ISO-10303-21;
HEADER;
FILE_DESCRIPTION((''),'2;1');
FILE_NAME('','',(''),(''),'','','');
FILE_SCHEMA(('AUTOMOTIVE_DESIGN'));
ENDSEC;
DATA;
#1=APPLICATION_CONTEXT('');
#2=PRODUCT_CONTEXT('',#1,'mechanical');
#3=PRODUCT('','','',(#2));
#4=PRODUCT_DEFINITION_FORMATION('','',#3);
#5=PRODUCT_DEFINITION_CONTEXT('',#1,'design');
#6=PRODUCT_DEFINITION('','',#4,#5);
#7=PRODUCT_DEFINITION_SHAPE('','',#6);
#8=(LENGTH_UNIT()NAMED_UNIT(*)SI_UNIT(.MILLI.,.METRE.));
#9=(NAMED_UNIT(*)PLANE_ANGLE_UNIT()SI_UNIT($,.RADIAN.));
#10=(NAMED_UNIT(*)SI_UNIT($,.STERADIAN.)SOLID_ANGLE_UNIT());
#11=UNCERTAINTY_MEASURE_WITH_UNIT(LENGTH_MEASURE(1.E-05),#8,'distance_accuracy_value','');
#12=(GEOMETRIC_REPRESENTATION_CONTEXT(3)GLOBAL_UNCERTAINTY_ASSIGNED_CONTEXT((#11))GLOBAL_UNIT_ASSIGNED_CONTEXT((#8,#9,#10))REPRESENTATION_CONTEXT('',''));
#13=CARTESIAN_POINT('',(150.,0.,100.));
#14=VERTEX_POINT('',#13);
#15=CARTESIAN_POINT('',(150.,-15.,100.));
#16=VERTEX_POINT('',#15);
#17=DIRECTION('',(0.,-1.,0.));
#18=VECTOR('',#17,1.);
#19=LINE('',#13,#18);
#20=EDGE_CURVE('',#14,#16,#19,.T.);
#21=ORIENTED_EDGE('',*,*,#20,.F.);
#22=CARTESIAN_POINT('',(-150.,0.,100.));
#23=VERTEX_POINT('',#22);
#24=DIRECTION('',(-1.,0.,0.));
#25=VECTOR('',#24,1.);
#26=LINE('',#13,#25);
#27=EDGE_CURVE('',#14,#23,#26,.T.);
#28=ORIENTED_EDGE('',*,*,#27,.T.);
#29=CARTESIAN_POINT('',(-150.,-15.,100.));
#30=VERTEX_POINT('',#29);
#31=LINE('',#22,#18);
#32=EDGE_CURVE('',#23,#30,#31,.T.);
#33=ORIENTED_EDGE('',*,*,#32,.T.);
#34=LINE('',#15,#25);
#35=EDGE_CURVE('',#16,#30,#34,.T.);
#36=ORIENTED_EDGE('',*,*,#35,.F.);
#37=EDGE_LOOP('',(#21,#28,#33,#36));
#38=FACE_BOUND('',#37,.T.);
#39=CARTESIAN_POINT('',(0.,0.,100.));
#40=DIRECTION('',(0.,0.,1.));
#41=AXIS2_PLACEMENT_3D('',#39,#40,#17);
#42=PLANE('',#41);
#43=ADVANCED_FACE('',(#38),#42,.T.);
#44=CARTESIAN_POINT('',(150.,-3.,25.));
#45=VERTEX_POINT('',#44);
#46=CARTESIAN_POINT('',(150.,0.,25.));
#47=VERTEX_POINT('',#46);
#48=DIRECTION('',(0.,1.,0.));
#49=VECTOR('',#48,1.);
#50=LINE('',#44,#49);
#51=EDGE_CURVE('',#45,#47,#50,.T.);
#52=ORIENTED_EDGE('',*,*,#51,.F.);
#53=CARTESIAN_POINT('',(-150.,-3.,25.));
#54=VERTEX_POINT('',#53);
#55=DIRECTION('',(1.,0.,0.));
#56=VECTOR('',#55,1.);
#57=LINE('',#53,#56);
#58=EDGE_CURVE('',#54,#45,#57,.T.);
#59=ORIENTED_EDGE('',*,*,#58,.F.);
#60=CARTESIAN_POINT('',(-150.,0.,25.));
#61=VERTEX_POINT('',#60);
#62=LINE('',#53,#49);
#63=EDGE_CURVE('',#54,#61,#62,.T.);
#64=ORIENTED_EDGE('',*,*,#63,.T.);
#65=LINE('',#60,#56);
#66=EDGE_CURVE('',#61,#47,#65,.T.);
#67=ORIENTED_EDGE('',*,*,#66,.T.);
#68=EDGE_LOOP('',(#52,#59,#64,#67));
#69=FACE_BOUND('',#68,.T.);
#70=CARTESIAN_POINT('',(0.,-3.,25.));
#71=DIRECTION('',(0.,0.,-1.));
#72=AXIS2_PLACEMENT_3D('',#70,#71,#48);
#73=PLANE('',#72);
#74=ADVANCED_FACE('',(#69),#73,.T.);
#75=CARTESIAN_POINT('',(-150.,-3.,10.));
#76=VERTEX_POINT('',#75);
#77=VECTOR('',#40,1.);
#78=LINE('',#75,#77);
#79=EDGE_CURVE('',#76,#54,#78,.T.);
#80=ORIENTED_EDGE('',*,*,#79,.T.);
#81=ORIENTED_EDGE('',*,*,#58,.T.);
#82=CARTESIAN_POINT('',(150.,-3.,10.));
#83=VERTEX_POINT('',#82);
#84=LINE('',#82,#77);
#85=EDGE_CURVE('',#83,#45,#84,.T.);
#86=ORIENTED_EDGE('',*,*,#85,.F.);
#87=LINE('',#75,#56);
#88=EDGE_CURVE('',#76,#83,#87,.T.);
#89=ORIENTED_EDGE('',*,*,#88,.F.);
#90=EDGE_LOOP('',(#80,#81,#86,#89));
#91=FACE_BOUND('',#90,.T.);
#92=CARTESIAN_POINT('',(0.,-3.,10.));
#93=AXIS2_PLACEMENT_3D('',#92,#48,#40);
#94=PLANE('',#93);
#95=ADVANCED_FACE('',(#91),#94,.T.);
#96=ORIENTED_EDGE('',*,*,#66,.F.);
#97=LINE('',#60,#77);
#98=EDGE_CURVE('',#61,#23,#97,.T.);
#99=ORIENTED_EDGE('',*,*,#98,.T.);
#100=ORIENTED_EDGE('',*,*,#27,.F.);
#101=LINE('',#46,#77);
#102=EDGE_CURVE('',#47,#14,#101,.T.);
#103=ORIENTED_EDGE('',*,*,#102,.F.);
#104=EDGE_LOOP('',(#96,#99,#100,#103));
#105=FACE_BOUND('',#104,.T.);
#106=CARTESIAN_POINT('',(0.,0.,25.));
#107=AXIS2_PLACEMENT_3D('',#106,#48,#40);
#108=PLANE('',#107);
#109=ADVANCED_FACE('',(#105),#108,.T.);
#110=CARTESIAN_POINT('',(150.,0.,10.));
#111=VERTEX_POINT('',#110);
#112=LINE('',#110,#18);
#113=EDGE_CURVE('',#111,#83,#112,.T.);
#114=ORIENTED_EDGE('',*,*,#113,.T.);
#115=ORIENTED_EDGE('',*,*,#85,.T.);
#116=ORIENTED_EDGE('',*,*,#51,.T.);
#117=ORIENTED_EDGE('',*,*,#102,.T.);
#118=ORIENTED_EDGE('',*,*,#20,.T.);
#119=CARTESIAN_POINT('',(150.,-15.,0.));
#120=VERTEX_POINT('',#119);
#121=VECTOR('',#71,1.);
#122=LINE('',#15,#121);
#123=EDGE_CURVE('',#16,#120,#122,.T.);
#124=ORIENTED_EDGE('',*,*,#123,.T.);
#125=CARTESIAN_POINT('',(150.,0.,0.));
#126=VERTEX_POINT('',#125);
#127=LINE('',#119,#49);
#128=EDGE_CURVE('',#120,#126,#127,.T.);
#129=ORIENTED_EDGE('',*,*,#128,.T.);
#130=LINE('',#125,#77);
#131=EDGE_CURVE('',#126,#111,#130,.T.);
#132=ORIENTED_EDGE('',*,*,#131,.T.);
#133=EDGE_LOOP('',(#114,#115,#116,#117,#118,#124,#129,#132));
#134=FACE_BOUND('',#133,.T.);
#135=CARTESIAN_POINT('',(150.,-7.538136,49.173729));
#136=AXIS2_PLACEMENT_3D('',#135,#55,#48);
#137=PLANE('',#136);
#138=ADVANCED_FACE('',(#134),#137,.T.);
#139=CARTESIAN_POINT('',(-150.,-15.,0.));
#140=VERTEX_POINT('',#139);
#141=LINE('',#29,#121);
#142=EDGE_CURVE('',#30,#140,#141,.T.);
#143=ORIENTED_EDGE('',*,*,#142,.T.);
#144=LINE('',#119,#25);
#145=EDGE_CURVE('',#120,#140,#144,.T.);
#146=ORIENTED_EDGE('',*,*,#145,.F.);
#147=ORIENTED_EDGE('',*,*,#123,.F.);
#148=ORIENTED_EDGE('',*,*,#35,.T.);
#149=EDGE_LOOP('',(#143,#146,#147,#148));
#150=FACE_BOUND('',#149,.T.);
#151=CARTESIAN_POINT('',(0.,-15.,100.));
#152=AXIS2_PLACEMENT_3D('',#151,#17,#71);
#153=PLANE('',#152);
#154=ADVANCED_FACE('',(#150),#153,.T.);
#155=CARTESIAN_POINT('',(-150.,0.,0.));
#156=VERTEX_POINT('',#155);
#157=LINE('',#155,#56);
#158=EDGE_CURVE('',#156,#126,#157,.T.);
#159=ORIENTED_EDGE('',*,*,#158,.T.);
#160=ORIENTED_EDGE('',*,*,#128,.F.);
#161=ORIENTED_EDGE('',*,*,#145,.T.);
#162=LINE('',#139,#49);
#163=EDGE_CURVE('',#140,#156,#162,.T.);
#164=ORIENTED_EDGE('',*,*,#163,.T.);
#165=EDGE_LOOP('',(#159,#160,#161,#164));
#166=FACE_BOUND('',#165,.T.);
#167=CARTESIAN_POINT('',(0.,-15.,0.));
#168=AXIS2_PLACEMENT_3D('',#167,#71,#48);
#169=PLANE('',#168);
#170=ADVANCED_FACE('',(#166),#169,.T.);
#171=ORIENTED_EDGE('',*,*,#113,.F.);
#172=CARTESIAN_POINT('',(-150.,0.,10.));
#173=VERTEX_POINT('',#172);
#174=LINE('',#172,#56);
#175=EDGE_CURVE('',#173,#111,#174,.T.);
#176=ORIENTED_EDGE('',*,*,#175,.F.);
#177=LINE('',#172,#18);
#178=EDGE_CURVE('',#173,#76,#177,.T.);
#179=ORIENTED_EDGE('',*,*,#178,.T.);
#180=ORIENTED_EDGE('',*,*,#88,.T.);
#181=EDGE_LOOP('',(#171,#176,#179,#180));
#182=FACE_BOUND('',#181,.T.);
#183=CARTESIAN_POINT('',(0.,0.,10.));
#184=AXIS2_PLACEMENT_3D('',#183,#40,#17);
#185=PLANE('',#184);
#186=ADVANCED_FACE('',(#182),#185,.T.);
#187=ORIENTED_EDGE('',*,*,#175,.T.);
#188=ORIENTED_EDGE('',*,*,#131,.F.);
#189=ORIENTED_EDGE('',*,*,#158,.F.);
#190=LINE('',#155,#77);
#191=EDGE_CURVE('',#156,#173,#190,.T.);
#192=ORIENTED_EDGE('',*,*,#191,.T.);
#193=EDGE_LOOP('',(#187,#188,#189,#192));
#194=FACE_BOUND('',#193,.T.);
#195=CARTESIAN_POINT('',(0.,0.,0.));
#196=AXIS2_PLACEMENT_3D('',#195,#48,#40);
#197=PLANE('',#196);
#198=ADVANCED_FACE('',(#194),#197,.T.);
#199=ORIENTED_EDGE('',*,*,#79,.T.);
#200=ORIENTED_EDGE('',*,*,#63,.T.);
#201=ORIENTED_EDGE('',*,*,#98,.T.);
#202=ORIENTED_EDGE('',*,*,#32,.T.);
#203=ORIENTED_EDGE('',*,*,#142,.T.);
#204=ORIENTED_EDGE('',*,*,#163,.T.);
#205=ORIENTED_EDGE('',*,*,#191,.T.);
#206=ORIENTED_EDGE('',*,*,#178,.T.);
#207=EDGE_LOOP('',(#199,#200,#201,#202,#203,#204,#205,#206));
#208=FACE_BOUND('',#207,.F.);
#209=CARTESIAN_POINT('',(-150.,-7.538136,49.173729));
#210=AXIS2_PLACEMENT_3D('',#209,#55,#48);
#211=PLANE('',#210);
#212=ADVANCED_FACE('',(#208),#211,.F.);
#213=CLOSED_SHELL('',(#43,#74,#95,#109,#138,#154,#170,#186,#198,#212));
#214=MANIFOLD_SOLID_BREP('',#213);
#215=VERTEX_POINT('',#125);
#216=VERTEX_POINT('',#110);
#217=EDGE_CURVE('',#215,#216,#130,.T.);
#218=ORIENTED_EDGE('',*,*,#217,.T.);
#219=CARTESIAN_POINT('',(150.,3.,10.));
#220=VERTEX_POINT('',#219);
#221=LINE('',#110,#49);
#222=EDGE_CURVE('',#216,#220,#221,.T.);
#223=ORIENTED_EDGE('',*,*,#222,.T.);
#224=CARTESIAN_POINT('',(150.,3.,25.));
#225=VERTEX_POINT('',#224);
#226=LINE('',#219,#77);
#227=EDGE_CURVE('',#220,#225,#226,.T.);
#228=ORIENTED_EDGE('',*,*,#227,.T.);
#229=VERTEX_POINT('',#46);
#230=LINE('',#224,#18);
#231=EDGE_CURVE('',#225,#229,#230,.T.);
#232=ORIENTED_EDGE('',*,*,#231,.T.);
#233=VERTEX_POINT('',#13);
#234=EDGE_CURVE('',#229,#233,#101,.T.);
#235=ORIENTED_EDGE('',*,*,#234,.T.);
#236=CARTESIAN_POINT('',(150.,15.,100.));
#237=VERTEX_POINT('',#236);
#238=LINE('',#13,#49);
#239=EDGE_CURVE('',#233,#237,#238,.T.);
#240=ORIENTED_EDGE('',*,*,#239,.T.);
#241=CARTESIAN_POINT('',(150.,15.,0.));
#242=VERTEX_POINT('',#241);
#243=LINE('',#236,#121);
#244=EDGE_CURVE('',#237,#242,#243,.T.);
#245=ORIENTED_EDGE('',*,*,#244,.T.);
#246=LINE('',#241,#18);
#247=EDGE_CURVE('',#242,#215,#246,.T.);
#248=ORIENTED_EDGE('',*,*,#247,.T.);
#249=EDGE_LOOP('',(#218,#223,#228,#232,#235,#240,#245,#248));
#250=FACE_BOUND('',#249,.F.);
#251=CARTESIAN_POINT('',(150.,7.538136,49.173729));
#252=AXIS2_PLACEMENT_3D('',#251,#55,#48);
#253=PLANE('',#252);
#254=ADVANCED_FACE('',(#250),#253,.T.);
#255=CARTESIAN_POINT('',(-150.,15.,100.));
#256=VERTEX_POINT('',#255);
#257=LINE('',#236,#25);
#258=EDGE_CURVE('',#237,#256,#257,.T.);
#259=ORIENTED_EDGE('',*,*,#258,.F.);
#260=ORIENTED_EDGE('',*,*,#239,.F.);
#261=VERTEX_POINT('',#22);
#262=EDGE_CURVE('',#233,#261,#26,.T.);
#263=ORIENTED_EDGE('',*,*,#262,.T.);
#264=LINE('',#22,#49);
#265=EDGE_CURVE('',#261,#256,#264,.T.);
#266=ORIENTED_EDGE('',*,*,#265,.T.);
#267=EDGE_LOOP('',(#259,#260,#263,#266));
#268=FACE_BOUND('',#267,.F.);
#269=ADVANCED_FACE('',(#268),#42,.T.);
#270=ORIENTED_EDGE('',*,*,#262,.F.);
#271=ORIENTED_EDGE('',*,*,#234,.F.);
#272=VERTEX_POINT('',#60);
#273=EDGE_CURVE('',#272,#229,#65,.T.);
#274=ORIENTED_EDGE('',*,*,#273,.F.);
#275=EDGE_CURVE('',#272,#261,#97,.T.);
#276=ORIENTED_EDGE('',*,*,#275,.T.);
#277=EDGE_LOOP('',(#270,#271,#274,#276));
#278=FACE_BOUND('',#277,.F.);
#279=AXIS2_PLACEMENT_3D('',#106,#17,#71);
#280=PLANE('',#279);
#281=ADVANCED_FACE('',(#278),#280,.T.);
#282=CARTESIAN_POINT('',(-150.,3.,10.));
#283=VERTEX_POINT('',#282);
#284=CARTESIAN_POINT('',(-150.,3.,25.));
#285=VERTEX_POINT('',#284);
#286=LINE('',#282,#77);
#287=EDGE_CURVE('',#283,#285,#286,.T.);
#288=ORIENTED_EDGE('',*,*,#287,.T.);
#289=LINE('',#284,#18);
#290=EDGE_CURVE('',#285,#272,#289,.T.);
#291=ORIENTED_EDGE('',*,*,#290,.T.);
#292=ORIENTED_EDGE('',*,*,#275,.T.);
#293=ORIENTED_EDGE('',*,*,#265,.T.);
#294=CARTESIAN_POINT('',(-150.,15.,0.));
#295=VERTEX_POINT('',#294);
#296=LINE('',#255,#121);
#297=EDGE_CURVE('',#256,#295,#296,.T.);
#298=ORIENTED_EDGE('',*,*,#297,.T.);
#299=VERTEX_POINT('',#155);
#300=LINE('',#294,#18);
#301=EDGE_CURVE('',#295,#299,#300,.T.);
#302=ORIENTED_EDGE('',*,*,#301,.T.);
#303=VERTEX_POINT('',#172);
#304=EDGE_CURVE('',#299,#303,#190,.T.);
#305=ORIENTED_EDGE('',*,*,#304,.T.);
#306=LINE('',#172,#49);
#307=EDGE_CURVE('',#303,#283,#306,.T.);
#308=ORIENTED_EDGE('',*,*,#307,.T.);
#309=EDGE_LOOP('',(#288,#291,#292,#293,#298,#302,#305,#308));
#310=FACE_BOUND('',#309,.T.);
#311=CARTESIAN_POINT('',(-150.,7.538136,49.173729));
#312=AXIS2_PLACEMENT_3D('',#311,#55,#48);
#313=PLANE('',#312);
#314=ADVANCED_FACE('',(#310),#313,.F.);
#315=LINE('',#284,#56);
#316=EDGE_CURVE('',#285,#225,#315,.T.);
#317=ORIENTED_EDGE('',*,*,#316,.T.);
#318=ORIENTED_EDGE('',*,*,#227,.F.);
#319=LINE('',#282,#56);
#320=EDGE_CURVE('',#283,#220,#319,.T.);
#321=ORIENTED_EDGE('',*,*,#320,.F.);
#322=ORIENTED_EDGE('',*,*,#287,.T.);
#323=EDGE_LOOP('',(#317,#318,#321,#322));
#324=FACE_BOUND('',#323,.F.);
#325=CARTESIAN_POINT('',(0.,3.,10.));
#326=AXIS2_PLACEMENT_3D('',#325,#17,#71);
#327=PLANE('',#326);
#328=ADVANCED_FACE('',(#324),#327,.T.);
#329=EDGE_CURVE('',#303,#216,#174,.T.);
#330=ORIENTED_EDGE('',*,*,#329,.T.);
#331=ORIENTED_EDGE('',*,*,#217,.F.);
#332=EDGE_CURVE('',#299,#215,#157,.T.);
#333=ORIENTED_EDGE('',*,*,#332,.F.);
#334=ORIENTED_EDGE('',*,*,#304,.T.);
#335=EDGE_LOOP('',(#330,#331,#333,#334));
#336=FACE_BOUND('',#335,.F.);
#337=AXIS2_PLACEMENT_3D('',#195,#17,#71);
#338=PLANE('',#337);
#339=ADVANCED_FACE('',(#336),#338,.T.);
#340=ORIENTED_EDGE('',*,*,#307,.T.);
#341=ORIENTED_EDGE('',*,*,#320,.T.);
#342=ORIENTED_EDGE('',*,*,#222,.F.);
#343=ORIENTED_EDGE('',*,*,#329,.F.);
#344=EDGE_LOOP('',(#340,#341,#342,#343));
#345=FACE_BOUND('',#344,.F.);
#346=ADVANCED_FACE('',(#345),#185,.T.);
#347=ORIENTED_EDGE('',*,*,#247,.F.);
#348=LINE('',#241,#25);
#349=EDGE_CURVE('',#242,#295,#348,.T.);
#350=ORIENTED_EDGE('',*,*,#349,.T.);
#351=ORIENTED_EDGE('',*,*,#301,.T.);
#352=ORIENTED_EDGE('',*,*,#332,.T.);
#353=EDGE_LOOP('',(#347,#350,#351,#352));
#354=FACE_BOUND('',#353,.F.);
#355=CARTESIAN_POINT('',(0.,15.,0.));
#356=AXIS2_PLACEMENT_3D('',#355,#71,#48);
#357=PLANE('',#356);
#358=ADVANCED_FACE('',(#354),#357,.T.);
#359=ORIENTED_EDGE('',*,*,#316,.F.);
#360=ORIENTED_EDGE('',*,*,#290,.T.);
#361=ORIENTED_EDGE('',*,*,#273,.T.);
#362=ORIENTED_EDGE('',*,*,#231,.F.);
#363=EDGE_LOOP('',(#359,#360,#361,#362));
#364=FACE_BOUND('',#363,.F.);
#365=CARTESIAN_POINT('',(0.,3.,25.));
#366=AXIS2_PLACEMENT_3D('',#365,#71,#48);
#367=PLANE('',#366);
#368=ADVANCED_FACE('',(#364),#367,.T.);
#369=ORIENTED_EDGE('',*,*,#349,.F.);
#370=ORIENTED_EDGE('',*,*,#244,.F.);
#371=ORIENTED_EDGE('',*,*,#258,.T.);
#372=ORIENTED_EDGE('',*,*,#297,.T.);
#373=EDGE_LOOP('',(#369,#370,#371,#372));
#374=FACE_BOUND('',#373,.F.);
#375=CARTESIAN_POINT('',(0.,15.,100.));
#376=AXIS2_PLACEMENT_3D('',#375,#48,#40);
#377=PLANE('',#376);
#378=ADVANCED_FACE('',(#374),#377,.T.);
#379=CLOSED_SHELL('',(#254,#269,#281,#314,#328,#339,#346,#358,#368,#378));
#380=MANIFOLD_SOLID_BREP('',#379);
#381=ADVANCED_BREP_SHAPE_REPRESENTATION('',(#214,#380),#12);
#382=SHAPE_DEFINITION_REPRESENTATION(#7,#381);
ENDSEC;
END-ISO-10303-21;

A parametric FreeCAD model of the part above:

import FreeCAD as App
import Part
import Sketcher


def add_polygon(sketch, points):
    """Adds a closed chain of lines whose ends are joined by coincident constraints."""
    first, n = sketch.GeometryCount, len(points)
    for a, b in zip(points, points[1:] + points[:1]):
        sketch.addGeometry(Part.LineSegment(App.Vector(*a, 0), App.Vector(*b, 0)), False)
    for i in range(n):
        sketch.addConstraint(Sketcher.Constraint("Coincident", first + i, 2, first + (i + 1) % n, 1))

doc = App.newDocument("Part")
body = doc.addObject("PartDesign::Body", "Body")

sketch1 = doc.addObject("Sketcher::SketchObject", "Sketch")
body.addObject(sketch1)
sketch1.AttachmentSupport = (doc.YZ_Plane, [""])
sketch1.MapMode = "FlatFace"
add_polygon(sketch1, [(-15, 0), (0, 0), (0, 10), (-3, 10), (-3, 25), (0, 25), (0, 100), (-15, 100)])
sketch1.addConstraint(Sketcher.Constraint("Horizontal", 0))
sketch1.addConstraint(Sketcher.Constraint("Vertical", 1))
sketch1.addConstraint(Sketcher.Constraint("Horizontal", 2))
sketch1.addConstraint(Sketcher.Constraint("Vertical", 3))
sketch1.addConstraint(Sketcher.Constraint("Horizontal", 4))
sketch1.addConstraint(Sketcher.Constraint("Vertical", 5))
sketch1.addConstraint(Sketcher.Constraint("Horizontal", 6))
sketch1.addConstraint(Sketcher.Constraint("Vertical", 7))
sketch1.addConstraint(Sketcher.Constraint("Coincident", 0, 2, -1, 1))
sketch1.addConstraint(Sketcher.Constraint("PointOnObject", 4, 2, -2))
sketch1.addConstraint(Sketcher.Constraint("Equal", 6, 3))
sketch1.addConstraint(Sketcher.Constraint("DistanceX", 0, 1, 0, 2, 15.0))
sketch1.addConstraint(Sketcher.Constraint("DistanceX", 2, 2, 2, 1, 3.0))
sketch1.addConstraint(Sketcher.Constraint("DistanceY", 1, 1, 1, 2, 10.0))
sketch1.addConstraint(Sketcher.Constraint("DistanceY", 5, 1, 5, 2, 75.0))
pad1 = doc.addObject("PartDesign::Pad", "Pad")
body.addObject(pad1)
pad1.Profile = sketch1
pad1.Length = 300
pad1.Midplane = True
body2 = doc.addObject("PartDesign::Body", "Body001")
doc.recompute()

mirroring = doc.addObject("Part::Mirroring", "Mirroring")
mirroring.Source = body
mirroring.Base = App.Vector(0, 0, 0)
mirroring.Normal = App.Vector(0, -1, 0)
body2.BaseFeature = mirroring
doc.recompute()
mirroring.Visibility = False

doc.recompute()
